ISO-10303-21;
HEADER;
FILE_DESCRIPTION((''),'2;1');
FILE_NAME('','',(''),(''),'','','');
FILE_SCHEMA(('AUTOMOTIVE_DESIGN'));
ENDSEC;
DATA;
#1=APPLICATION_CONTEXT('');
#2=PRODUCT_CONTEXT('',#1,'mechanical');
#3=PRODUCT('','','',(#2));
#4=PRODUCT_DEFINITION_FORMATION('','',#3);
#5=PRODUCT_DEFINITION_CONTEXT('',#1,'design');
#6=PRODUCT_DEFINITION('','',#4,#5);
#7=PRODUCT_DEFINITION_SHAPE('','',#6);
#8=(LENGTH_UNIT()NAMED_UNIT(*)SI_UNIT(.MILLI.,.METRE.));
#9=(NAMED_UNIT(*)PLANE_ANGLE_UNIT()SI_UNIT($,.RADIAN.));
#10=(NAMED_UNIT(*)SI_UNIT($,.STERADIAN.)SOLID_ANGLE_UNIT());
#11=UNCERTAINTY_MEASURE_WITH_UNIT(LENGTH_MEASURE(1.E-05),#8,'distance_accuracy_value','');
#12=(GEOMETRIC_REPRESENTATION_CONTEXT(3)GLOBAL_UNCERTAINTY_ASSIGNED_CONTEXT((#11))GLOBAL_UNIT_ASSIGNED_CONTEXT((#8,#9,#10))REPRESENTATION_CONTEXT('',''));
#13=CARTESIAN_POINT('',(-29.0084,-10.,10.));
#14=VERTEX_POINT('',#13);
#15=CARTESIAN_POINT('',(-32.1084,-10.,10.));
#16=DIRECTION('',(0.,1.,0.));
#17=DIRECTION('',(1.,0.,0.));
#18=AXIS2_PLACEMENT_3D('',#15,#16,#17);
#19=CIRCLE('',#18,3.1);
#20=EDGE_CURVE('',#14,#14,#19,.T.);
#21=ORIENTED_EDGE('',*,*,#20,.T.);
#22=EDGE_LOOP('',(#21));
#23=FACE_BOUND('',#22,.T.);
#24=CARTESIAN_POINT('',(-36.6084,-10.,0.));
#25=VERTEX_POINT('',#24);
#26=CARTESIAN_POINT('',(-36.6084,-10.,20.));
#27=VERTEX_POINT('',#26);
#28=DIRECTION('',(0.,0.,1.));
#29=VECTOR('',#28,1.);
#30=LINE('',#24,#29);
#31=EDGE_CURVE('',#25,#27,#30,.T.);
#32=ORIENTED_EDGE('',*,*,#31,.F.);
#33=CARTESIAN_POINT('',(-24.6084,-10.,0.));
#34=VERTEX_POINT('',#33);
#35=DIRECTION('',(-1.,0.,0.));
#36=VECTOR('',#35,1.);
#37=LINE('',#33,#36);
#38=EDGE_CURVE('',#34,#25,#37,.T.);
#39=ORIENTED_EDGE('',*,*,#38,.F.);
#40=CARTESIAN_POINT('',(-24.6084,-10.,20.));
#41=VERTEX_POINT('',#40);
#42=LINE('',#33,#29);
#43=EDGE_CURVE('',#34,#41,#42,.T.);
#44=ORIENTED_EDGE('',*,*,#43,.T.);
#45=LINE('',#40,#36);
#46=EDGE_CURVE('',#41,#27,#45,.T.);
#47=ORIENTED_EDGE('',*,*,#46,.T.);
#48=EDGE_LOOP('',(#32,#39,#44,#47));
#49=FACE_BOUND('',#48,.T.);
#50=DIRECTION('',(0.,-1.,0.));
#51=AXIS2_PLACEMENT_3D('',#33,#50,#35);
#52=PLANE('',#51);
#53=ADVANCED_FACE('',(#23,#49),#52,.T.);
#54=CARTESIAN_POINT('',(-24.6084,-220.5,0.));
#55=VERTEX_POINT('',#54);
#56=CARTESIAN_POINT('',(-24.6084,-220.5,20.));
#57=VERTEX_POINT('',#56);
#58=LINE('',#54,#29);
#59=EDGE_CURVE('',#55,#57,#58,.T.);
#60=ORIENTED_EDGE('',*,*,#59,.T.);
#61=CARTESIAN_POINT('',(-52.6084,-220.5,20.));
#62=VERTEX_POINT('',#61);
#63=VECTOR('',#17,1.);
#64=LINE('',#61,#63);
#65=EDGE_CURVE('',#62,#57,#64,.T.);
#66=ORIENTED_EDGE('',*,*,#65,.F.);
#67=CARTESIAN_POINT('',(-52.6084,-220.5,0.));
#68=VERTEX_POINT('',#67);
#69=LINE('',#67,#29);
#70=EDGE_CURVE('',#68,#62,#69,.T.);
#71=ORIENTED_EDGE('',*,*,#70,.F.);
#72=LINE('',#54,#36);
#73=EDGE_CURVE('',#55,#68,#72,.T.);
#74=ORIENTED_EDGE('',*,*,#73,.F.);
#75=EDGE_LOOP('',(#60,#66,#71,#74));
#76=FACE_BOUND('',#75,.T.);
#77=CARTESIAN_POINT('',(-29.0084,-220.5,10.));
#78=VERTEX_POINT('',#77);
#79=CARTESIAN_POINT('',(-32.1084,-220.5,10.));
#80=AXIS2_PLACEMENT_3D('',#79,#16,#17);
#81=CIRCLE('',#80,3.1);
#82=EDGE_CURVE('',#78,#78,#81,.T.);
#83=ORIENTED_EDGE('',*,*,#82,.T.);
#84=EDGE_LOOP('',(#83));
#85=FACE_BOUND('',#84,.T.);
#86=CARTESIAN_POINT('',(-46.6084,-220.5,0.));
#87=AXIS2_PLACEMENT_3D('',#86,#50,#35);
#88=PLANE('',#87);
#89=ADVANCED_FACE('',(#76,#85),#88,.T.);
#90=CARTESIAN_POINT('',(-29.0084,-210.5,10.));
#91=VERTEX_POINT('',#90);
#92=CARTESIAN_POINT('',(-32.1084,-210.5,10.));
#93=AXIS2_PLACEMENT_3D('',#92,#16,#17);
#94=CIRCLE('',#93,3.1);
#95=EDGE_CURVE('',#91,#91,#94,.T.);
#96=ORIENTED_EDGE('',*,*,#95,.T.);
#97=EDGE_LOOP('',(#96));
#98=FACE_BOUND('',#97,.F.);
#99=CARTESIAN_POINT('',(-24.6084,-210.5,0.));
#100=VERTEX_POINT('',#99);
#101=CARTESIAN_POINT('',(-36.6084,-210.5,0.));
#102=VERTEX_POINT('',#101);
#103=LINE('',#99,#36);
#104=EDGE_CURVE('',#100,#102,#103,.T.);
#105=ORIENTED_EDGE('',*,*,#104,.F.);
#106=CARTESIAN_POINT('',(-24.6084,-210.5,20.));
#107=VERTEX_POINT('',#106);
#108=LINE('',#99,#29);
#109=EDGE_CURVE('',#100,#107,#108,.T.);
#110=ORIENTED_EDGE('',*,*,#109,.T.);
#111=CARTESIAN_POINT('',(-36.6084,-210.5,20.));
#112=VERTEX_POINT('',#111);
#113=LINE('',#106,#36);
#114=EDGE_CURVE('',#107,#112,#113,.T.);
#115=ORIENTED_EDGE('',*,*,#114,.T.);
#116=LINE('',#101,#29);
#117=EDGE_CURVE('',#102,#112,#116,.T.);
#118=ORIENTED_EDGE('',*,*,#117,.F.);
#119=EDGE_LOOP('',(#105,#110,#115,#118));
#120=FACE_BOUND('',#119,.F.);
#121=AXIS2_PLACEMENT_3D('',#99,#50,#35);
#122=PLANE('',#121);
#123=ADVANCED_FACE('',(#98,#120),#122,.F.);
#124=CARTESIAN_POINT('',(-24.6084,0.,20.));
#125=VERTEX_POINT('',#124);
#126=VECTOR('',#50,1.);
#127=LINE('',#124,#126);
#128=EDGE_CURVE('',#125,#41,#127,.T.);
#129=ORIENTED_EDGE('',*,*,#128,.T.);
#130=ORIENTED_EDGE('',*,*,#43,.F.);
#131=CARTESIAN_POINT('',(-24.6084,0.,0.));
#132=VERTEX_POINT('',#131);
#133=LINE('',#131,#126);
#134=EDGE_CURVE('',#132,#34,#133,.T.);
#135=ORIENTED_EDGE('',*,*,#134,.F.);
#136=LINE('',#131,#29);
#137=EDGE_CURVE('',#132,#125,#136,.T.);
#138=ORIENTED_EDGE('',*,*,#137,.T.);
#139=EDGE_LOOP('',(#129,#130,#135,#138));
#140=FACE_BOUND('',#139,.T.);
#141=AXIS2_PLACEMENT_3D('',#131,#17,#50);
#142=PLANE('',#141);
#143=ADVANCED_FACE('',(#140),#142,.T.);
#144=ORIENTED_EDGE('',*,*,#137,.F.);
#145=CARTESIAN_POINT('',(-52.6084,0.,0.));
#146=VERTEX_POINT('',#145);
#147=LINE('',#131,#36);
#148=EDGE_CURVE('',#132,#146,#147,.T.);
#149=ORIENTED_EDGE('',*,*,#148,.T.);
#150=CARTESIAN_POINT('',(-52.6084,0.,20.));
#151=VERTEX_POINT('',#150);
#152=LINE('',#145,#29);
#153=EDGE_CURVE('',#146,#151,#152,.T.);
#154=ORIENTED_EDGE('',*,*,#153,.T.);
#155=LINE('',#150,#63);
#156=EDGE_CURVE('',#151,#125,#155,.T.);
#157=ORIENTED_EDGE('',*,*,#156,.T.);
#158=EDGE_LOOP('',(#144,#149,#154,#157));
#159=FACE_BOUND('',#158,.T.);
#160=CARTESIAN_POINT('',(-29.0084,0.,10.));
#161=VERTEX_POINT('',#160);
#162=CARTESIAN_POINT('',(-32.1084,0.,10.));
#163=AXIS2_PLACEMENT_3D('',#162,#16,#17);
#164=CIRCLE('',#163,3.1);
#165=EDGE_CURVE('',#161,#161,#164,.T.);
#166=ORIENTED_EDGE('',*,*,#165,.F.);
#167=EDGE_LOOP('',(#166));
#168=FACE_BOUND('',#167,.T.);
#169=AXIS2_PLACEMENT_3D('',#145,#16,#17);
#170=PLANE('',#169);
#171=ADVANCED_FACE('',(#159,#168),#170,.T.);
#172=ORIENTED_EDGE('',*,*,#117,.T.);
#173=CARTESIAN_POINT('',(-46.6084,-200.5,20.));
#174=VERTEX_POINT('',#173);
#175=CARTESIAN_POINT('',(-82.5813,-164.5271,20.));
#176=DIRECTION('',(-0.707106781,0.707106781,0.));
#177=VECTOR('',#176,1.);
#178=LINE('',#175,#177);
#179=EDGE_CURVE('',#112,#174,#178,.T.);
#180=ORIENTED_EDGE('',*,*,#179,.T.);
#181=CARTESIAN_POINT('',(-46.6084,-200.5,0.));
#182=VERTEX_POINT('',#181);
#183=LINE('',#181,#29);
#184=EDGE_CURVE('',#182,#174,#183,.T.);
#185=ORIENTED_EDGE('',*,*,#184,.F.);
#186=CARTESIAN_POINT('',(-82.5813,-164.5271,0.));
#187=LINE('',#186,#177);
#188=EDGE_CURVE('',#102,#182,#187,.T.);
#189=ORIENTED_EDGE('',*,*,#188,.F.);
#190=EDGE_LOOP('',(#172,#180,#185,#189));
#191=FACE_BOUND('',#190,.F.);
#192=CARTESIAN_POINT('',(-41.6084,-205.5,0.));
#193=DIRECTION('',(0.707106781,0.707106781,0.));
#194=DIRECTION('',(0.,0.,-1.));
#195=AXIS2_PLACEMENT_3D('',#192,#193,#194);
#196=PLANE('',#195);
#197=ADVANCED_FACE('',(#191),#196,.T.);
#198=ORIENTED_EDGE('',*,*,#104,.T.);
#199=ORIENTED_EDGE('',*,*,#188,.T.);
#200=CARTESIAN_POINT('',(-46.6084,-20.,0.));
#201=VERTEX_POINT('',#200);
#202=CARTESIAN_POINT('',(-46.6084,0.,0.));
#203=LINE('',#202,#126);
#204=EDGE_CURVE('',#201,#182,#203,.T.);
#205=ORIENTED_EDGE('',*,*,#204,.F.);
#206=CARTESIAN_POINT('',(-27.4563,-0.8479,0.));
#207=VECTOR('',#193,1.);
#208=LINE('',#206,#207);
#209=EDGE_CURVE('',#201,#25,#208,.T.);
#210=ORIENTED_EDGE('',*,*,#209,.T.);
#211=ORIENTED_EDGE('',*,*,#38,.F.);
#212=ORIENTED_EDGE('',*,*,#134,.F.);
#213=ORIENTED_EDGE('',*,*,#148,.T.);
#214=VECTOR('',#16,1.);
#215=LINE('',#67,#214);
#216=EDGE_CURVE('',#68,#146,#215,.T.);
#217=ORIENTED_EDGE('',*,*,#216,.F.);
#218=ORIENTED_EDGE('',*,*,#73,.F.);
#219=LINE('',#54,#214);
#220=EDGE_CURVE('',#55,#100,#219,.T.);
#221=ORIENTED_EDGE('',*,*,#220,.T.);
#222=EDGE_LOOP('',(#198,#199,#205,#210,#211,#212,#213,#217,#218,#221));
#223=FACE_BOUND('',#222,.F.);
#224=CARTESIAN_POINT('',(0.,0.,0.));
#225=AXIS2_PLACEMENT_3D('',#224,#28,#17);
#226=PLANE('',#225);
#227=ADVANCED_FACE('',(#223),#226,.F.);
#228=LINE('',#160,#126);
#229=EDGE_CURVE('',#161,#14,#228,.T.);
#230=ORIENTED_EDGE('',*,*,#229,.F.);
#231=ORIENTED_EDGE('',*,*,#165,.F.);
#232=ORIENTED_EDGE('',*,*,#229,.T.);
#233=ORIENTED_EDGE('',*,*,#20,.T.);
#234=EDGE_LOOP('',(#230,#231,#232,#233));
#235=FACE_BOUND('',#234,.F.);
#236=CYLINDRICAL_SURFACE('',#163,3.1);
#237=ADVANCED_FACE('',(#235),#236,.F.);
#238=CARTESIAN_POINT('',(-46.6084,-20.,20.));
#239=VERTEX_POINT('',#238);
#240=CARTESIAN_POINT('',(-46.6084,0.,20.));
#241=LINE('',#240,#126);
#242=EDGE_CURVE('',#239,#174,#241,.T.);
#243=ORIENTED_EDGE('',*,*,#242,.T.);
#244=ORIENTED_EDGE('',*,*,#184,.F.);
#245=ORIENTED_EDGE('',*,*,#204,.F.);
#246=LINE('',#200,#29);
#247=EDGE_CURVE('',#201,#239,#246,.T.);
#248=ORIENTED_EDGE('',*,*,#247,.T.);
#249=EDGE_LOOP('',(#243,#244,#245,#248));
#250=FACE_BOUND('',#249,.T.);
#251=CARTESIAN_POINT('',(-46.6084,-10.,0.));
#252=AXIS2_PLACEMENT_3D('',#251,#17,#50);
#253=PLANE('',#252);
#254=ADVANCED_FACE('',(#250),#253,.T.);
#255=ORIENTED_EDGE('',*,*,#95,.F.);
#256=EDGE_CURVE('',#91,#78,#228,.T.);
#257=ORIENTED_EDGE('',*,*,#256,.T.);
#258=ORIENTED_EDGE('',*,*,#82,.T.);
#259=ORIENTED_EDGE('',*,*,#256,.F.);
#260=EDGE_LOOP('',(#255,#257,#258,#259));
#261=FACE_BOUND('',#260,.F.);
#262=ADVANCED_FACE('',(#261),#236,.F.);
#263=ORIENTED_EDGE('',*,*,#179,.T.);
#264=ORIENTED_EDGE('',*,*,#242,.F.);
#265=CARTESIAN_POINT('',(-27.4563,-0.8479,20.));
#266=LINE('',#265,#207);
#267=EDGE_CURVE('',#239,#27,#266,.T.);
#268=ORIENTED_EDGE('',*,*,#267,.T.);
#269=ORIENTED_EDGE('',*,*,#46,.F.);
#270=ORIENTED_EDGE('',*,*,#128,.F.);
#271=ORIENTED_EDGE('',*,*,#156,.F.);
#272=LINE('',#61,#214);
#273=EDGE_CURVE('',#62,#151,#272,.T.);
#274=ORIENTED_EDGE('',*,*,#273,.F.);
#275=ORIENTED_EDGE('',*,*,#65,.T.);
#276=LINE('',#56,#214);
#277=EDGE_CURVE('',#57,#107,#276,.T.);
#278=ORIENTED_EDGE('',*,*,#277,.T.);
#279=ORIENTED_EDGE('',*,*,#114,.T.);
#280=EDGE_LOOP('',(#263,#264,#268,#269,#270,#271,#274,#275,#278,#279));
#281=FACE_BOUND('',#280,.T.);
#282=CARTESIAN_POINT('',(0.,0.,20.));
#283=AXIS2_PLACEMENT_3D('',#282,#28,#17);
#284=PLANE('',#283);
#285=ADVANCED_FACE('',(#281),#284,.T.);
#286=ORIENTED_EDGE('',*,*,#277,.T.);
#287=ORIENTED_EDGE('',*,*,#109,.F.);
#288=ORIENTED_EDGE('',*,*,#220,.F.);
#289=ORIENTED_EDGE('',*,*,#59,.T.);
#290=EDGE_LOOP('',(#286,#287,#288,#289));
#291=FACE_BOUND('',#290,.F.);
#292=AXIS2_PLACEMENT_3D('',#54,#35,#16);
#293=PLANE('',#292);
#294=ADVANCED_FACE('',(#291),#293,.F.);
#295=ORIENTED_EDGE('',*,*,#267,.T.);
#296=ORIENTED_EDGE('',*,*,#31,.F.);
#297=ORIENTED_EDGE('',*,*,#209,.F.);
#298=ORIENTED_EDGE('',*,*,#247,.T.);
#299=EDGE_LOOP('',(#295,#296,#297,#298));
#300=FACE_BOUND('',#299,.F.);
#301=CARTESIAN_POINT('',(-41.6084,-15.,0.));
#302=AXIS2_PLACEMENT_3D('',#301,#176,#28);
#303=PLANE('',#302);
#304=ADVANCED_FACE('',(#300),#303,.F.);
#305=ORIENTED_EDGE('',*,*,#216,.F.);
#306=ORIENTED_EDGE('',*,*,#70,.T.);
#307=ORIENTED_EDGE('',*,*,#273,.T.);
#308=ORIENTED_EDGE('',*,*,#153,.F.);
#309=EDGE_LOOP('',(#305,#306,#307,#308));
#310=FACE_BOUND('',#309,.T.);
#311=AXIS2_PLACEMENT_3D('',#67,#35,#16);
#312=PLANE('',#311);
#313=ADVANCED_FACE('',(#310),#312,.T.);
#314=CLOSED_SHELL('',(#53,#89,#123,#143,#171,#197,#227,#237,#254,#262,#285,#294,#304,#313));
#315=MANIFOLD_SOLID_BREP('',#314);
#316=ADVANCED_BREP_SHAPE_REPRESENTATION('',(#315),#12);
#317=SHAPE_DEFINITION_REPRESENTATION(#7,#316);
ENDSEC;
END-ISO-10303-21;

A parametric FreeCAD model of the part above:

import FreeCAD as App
import Part
import Sketcher

V = App.Vector


def edges_at(feature, points):
    """Names of the edges that pass closest to the given points."""
    edges = feature.Shape.Edges
    near = lambda p: min(range(len(edges)), key=lambda i: edges[i].distToShape(Part.Vertex(*p))[0])
    return sorted({f"Edge{near(p) + 1}" for p in points})


def add_polygon(sketch, points):
    """Adds a closed chain of lines whose ends are joined by coincident constraints."""
    first, n = sketch.GeometryCount, len(points)
    for a, b in zip(points, points[1:] + points[:1]):
        sketch.addGeometry(Part.LineSegment(App.Vector(*a, 0), App.Vector(*b, 0)), False)
    for i in range(n):
        sketch.addConstraint(Sketcher.Constraint("Coincident", first + i, 2, first + (i + 1) % n, 1))

doc = App.newDocument("Part")
body = doc.addObject("PartDesign::Body", "Body")

# Sketch on XY plane
sketch1 = body.newObject("Sketcher::SketchObject", "Sketch")
sketch1.AttachmentSupport = (doc.getObject("XY_Plane"), [""])
sketch1.MapMode = "FlatFace"
add_polygon(sketch1, [(-53, 0), (-53, -220), (-25, -220), (-25, -210), (-47, -210), (-47, -10), (-25, -10), (-25, 0)])  # lines 0-7
sketch1.addConstraint([
    Sketcher.Constraint("Vertical", 0),
    Sketcher.Constraint("Horizontal", 1),
    Sketcher.Constraint("Vertical", 2),
    Sketcher.Constraint("Horizontal", 3),
    Sketcher.Constraint("Vertical", 4),
    Sketcher.Constraint("Horizontal", 5),
    Sketcher.Constraint("Vertical", 6),
    Sketcher.Constraint("Horizontal", 7),
    Sketcher.Constraint("PointOnObject", 6, 2, -1),
    Sketcher.Constraint("Vertical", 2, 2, 5, 2),
    Sketcher.Constraint("Equal", 2, 6),
    Sketcher.Constraint("DistanceX", 3, 2, 3, 1, 22.0),
    Sketcher.Constraint("DistanceY", 2, 1, 2, 2, 10.0),
    Sketcher.Constraint("DistanceX", 0, 2, 3, 2, 6.0),
    Sketcher.Constraint("DistanceY", 0, 2, 0, 1, 220.5),
    Sketcher.Constraint("DistanceX", 0, 2, -1, 1, 52.6084),
])
pad1 = body.newObject("PartDesign::Pad", "Pad")
pad1.Profile = sketch1
pad1.Length = 20

# Sketch on XZ plane
sketch2 = body.newObject("Sketcher::SketchObject", "Sketch001")
sketch2.AttachmentSupport = (doc.getObject("XZ_Plane"), [""])
sketch2.MapMode = "FlatFace"
sketch2.addGeometry(Part.Circle(V(-32.1, 10, 0), V(0, 0, 1), 3.1), False)
sketch2.addConstraint([
    Sketcher.Constraint("Diameter", 0, 6.2),
    Sketcher.Constraint("DistanceY", -1, 1, 0, 3, 10.0),
    Sketcher.Constraint("DistanceX", 0, 3, -1, 1, 32.1084),
])
pocket1 = body.newObject("PartDesign::Pocket", "Pocket")
pocket1.Profile = sketch2
pocket1.Type = "ThroughAll"
pocket1.Reversed = True
doc.recompute()

chamfer = body.newObject("PartDesign::Chamfer", "Chamfer")
chamfer.Base = (pocket1, edges_at(pocket1, [(-46.608, -10, 10), (-46.608, -210.5, 10)]))
chamfer.Size = 10

doc.recompute()
